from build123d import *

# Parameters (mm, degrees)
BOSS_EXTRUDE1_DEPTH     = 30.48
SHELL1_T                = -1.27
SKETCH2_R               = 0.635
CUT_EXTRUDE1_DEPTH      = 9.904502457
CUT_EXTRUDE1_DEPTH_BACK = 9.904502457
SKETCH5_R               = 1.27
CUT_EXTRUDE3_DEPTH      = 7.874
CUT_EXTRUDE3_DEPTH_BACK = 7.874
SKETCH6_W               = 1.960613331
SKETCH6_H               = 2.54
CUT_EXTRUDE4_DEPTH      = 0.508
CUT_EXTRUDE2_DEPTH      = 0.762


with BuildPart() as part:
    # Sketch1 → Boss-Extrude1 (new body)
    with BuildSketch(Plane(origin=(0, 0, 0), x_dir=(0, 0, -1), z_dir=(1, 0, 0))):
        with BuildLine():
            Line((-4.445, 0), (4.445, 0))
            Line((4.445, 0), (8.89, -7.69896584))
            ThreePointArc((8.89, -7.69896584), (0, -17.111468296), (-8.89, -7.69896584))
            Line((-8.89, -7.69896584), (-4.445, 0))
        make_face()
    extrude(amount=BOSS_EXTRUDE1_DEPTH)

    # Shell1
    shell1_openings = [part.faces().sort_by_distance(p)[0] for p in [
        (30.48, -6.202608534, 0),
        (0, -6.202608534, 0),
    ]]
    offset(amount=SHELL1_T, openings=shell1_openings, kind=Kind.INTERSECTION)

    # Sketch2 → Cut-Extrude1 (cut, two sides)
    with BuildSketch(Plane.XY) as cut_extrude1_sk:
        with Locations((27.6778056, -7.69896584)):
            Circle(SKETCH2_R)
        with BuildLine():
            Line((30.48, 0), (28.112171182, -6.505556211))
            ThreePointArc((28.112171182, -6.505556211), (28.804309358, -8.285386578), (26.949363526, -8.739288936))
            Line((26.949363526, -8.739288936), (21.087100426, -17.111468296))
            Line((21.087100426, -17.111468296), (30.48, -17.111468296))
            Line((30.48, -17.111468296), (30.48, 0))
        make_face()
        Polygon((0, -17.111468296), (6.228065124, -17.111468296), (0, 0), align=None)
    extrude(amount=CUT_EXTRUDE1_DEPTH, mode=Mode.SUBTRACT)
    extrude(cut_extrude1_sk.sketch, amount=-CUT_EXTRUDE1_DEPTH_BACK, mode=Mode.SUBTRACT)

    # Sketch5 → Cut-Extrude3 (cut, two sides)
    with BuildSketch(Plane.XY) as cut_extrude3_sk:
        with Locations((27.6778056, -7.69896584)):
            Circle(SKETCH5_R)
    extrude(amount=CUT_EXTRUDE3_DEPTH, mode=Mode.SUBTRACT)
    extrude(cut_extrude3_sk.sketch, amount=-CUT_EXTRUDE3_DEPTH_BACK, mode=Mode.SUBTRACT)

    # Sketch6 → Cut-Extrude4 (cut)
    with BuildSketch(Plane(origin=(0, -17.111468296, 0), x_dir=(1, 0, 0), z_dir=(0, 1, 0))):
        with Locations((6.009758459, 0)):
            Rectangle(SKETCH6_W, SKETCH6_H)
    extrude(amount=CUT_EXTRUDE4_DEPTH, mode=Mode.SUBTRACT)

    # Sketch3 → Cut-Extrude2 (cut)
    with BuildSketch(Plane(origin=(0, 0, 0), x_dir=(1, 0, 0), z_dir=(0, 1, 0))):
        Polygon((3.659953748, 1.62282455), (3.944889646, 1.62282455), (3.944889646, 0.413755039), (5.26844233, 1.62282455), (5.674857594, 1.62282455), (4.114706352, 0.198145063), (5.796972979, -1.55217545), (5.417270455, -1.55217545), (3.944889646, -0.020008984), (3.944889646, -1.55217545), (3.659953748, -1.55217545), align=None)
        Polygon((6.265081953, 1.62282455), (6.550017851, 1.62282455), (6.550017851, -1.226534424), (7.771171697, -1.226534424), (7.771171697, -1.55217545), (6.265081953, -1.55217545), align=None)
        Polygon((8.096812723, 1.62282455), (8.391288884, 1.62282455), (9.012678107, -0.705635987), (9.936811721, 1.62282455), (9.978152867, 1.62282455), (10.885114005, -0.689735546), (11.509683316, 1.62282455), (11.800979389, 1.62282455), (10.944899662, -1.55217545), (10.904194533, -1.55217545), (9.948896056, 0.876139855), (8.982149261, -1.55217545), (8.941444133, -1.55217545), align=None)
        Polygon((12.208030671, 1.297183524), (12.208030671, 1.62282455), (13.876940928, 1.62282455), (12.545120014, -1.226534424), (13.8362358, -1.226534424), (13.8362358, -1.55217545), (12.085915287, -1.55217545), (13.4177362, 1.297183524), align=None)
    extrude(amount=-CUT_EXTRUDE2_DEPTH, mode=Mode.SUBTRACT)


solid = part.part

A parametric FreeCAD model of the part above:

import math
import FreeCAD as App
import Part
import Sketcher

V = App.Vector
Q = App.Units.Quantity


def faces_at(feature, points):
    """Names of the faces that lie closest to the given points."""
    faces = feature.Shape.Faces
    near = lambda p: min(range(len(faces)), key=lambda i: faces[i].distToShape(Part.Vertex(*p))[0])
    return sorted({f"Face{near(p) + 1}" for p in points})

doc = App.newDocument("Part")
body = doc.addObject("PartDesign::Body", "Body")

sketch1 = body.newObject("Sketcher::SketchObject", "Sketch")
sketch1.AttachmentSupport = (doc.getObject("YZ_Plane"), [""])
sketch1.MapMode = "FlatFace"
sketch1.addGeometry(Part.LineSegment(V(0, -4, 0), V(0, 4, 0)), False)
sketch1.addGeometry(Part.LineSegment(V(0, 4, 0), V(-8, 9, 0)), False)
sketch1.addGeometry(Part.ArcOfCircle(Part.Circle(V(-8, 0, 0), V(0, 0, 1), 9), math.radians(87), math.radians(273)), False)
sketch1.addGeometry(Part.LineSegment(V(-8, -9, 0), V(0, -4, 0)), False)
sketch1.addConstraint(Sketcher.Constraint("Coincident", 0, 2, 1, 1))
sketch1.addConstraint(Sketcher.Constraint("Coincident", 1, 2, 2, 1))
sketch1.addConstraint(Sketcher.Constraint("Coincident", 2, 2, 3, 1))
sketch1.addConstraint(Sketcher.Constraint("Coincident", 3, 2, 0, 1))
sketch1.addConstraint(Sketcher.Constraint("Vertical", 0))
sketch1.addConstraint(Sketcher.Constraint("Symmetric", 0, 2, 3, 2, -1, 1))
sketch1.addConstraint(Sketcher.Constraint("Symmetric", 1, 2, 2, 2, -1))
sketch1.addConstraint(Sketcher.Constraint("Angle", 1, Q("150 deg")))
sketch1.addConstraint(Sketcher.Constraint("DistanceY", 0, 1, 0, 2, Q("0.35 in")))
sketch1.addConstraint(Sketcher.Constraint("DistanceY", 2, 2, 1, 2, Q("0.7 in")))
sketch1.addConstraint(Sketcher.Constraint("DistanceX", 2, 3, 1, 2, Q("0.02 in")))
pad1 = body.newObject("PartDesign::Pad", "Pad")
pad1.Profile = sketch1
pad1.Length = Q("1.2 in")
doc.recompute()

thickness = body.newObject("PartDesign::Thickness", "Thickness")
thickness.Base = (pad1, faces_at(pad1, [(30.48, -8.556, 0), (0, -8.556, 0)]))
thickness.Value = Q("0.05 in")
thickness.Reversed = True
thickness.Join = "Intersection"

sketch2 = body.newObject("Sketcher::SketchObject", "Sketch001")
sketch2.AttachmentSupport = (doc.getObject("XY_Plane"), [""])
sketch2.MapMode = "FlatFace"
sketch2.addGeometry(Part.Circle(V(27.7, -7.7, 0), V(0, 0, 1), 0.6), False)
sketch2.addGeometry(Part.LineSegment(V(30.5, 0, 0), V(28.1, -6.5, 0)), False)
sketch2.addGeometry(Part.ArcOfCircle(Part.Circle(V(27.7, -7.7, 0), V(0, 0, 1), 1.3), math.radians(-125), math.radians(70)), False)
sketch2.addGeometry(Part.LineSegment(V(26.9, -8.7, 0), V(21.1, -17.1, 0)), False)
sketch2.addGeometry(Part.LineSegment(V(21.1, -17.1, 0), V(30.5, -17.1, 0)), False)
sketch2.addGeometry(Part.LineSegment(V(30.5, -17.1, 0), V(30.5, 0, 0)), False)
sketch2.addGeometry(Part.LineSegment(V(0, -17.1, 0), V(6.2, -17.1, 0)), False)
sketch2.addGeometry(Part.LineSegment(V(6.2, -17.1, 0), V(0, 0, 0)), False)
sketch2.addGeometry(Part.LineSegment(V(0, 0, 0), V(0, -17.1, 0)), False)
sketch2.addConstraint(Sketcher.Constraint("Coincident", 1, 2, 2, 2))
sketch2.addConstraint(Sketcher.Constraint("Coincident", 2, 1, 3, 1))
sketch2.addConstraint(Sketcher.Constraint("Coincident", 3, 2, 4, 1))
sketch2.addConstraint(Sketcher.Constraint("Coincident", 4, 2, 5, 1))
sketch2.addConstraint(Sketcher.Constraint("Coincident", 5, 2, 1, 1))
sketch2.addConstraint(Sketcher.Constraint("Coincident", 6, 2, 7, 1))
sketch2.addConstraint(Sketcher.Constraint("Coincident", 7, 2, 8, 1))
sketch2.addConstraint(Sketcher.Constraint("Coincident", 8, 2, 6, 1))
sketch2.addConstraint(Sketcher.Constraint("Horizontal", 4))
sketch2.addConstraint(Sketcher.Constraint("Vertical", 5))
sketch2.addConstraint(Sketcher.Constraint("Horizontal", 6))
sketch2.addConstraint(Sketcher.Constraint("Vertical", 8))
sketch2.addConstraint(Sketcher.Constraint("Coincident", 7, 2, -1, 1))
sketch2.addConstraint(Sketcher.Constraint("Coincident", 2, 3, 0, 3))
sketch2.addConstraint(Sketcher.Constraint("PointOnObject", 5, 2, -1))
sketch2.addConstraint(Sketcher.Constraint("Horizontal", 4, 2, 6, 2))
sketch2.addConstraint(Sketcher.Constraint("Diameter", 0, Q("0.05 in")))
sketch2.addConstraint(Sketcher.Constraint("Radius", 2, Q("0.05 in")))
sketch2.addConstraint(Sketcher.Constraint("Angle", 1, Q("-110 deg")))
sketch2.addConstraint(Sketcher.Constraint("Angle", 3, Q("-125 deg")))
sketch2.addConstraint(Sketcher.Constraint("Angle", 7, Q("110 deg")))
sketch2.addConstraint(Sketcher.Constraint("DistanceX", -1, 1, 4, 2, Q("1.2 in")))
sketch2.addConstraint(Sketcher.Constraint("DistanceX", 4, 1, 4, 2, Q("9.3929 mm")))
sketch2.addConstraint(Sketcher.Constraint("DistanceY", 5, 1, 5, 2, Q("17.111468 mm")))
sketch2.addConstraint(Sketcher.Constraint("DistanceX", 6, 2, 2, 1, Q("20.721298 mm")))
sketch2.addConstraint(Sketcher.Constraint("Distance", 1, Q("6.923068 mm")))
pocket1 = body.newObject("PartDesign::Pocket", "Pocket")
pocket1.Profile = sketch2
pocket1.Type = "ThroughAll"
pocket1.Midplane = True

sketch3 = body.newObject("Sketcher::SketchObject", "Sketch002")
sketch3.AttachmentSupport = (doc.getObject("XY_Plane"), [""])
sketch3.MapMode = "FlatFace"
sketch3.addGeometry(Part.Circle(V(27.7, -7.7, 0), V(0, 0, 1), 1.3), False)
sketch3.addConstraint(Sketcher.Constraint("Diameter", 0, Q("0.1 in")))
sketch3.addConstraint(Sketcher.Constraint("DistanceX", -1, 1, 0, 3, Q("27.677806 mm")))
sketch3.addConstraint(Sketcher.Constraint("DistanceY", 0, 3, -1, 1, Q("7.698966 mm")))
pocket2 = body.newObject("PartDesign::Pocket", "Pocket001")
pocket2.Profile = sketch3
pocket2.Type = "TwoLengths"
pocket2.Length = Q("0.31 in")
pocket2.Length2 = Q("0.31 in")
pocket2.Reversed = True

sketch4 = body.newObject("Sketcher::SketchObject", "Sketch003")
sketch4.AttachmentSupport = (doc.getObject("XZ_Plane"), [""])
sketch4.MapMode = "FlatFace"
sketch4.AttachmentOffset = App.Placement(V(0, 0, 17.111468), App.Rotation())
sketch4.addGeometry(Part.LineSegment(V(5, -1.3, 0), V(5, 1.3, 0)), False)
sketch4.addGeometry(Part.LineSegment(V(5, 1.3, 0), V(7, 1.3, 0)), False)
sketch4.addGeometry(Part.LineSegment(V(7, 1.3, 0), V(7, -1.3, 0)), False)
sketch4.addGeometry(Part.LineSegment(V(7, -1.3, 0), V(5, -1.3, 0)), False)
sketch4.addConstraint(Sketcher.Constraint("Coincident", 0, 2, 1, 1))
sketch4.addConstraint(Sketcher.Constraint("Coincident", 1, 2, 2, 1))
sketch4.addConstraint(Sketcher.Constraint("Coincident", 2, 2, 3, 1))
sketch4.addConstraint(Sketcher.Constraint("Coincident", 3, 2, 0, 1))
sketch4.addConstraint(Sketcher.Constraint("Vertical", 0))
sketch4.addConstraint(Sketcher.Constraint("Horizontal", 1))
sketch4.addConstraint(Sketcher.Constraint("Vertical", 2))
sketch4.addConstraint(Sketcher.Constraint("Horizontal", 3))
sketch4.addConstraint(Sketcher.Constraint("DistanceY", 0, 1, 0, 2, Q("0.1 in")))
sketch4.addConstraint(Sketcher.Constraint("DistanceY", -1, 1, 0, 2, Q("0.05 in")))
sketch4.addConstraint(Sketcher.Constraint("DistanceX", 1, 1, 1, 2, Q("1.960613 mm")))
sketch4.addConstraint(Sketcher.Constraint("DistanceX", -1, 1, 0, 2, Q("5.029452 mm")))
pocket3 = body.newObject("PartDesign::Pocket", "Pocket002")
pocket3.Profile = sketch4
pocket3.Length = Q("0.02 in")

sketch5 = body.newObject("Sketcher::SketchObject", "Sketch004")
sketch5.AttachmentSupport = (doc.getObject("XZ_Plane"), [""])
sketch5.MapMode = "FlatFace"
sketch5.addGeometry(Part.LineSegment(V(3.945, -1.623, 0), V(3.66, -1.623, 0)), False)
sketch5.addGeometry(Part.LineSegment(V(3.66, -1.623, 0), V(3.66, 1.552, 0)), False)
sketch5.addGeometry(Part.LineSegment(V(3.66, 1.552, 0), V(3.945, 1.552, 0)), False)
sketch5.addGeometry(Part.LineSegment(V(3.945, 1.552, 0), V(3.945, 0.02, 0)), False)
sketch5.addGeometry(Part.LineSegment(V(3.945, 0.02, 0), V(5.417, 1.552, 0)), False)
sketch5.addGeometry(Part.LineSegment(V(5.417, 1.552, 0), V(5.797, 1.552, 0)), False)
sketch5.addGeometry(Part.LineSegment(V(5.797, 1.552, 0), V(4.115, -0.198, 0)), False)
sketch5.addGeometry(Part.LineSegment(V(4.115, -0.198, 0), V(5.675, -1.623, 0)), False)
sketch5.addGeometry(Part.LineSegment(V(5.675, -1.623, 0), V(5.268, -1.623, 0)), False)
sketch5.addGeometry(Part.LineSegment(V(5.268, -1.623, 0), V(3.945, -0.414, 0)), False)
sketch5.addGeometry(Part.LineSegment(V(3.945, -0.414, 0), V(3.945, -1.623, 0)), False)
sketch5.addGeometry(Part.LineSegment(V(6.55, -1.623, 0), V(6.265, -1.623, 0)), False)
sketch5.addGeometry(Part.LineSegment(V(6.265, -1.623, 0), V(6.265, 1.552, 0)), False)
sketch5.addGeometry(Part.LineSegment(V(6.265, 1.552, 0), V(7.771, 1.552, 0)), False)
sketch5.addGeometry(Part.LineSegment(V(7.771, 1.552, 0), V(7.771, 1.227, 0)), False)
sketch5.addGeometry(Part.LineSegment(V(7.771, 1.227, 0), V(6.55, 1.227, 0)), False)
sketch5.addGeometry(Part.LineSegment(V(6.55, 1.227, 0), V(6.55, -1.623, 0)), False)
sketch5.addGeometry(Part.LineSegment(V(8.391, -1.623, 0), V(8.097, -1.623, 0)), False)
sketch5.addGeometry(Part.LineSegment(V(8.097, -1.623, 0), V(8.941, 1.552, 0)), False)
sketch5.addGeometry(Part.LineSegment(V(8.941, 1.552, 0), V(8.982, 1.552, 0)), False)
sketch5.addGeometry(Part.LineSegment(V(8.982, 1.552, 0), V(9.949, -0.876, 0)), False)
sketch5.addGeometry(Part.LineSegment(V(9.949, -0.876, 0), V(10.904, 1.552, 0)), False)
sketch5.addGeometry(Part.LineSegment(V(10.904, 1.552, 0), V(10.945, 1.552, 0)), False)
sketch5.addGeometry(Part.LineSegment(V(10.945, 1.552, 0), V(11.801, -1.623, 0)), False)
sketch5.addGeometry(Part.LineSegment(V(11.801, -1.623, 0), V(11.51, -1.623, 0)), False)
sketch5.addGeometry(Part.LineSegment(V(11.51, -1.623, 0), V(10.885, 0.69, 0)), False)
sketch5.addGeometry(Part.LineSegment(V(10.885, 0.69, 0), V(9.978, -1.623, 0)), False)
sketch5.addGeometry(Part.LineSegment(V(9.978, -1.623, 0), V(9.937, -1.623, 0)), False)
sketch5.addGeometry(Part.LineSegment(V(9.937, -1.623, 0), V(9.013, 0.706, 0)), False)
sketch5.addGeometry(Part.LineSegment(V(9.013, 0.706, 0), V(8.391, -1.623, 0)), False)
sketch5.addGeometry(Part.LineSegment(V(12.208, -1.623, 0), V(12.208, -1.297, 0)), False)
sketch5.addGeometry(Part.LineSegment(V(12.208, -1.297, 0), V(13.418, -1.297, 0)), False)
sketch5.addGeometry(Part.LineSegment(V(13.418, -1.297, 0), V(12.086, 1.552, 0)), False)
sketch5.addGeometry(Part.LineSegment(V(12.086, 1.552, 0), V(13.836, 1.552, 0)), False)
sketch5.addGeometry(Part.LineSegment(V(13.836, 1.552, 0), V(13.836, 1.227, 0)), False)
sketch5.addGeometry(Part.LineSegment(V(13.836, 1.227, 0), V(12.545, 1.227, 0)), False)
sketch5.addGeometry(Part.LineSegment(V(12.545, 1.227, 0), V(13.877, -1.623, 0)), False)
sketch5.addGeometry(Part.LineSegment(V(13.877, -1.623, 0), V(12.208, -1.623, 0)), False)
sketch5.addConstraint(Sketcher.Constraint("Coincident", 0, 2, 1, 1))
sketch5.addConstraint(Sketcher.Constraint("Coincident", 1, 2, 2, 1))
sketch5.addConstraint(Sketcher.Constraint("Coincident", 2, 2, 3, 1))
sketch5.addConstraint(Sketcher.Constraint("Coincident", 3, 2, 4, 1))
sketch5.addConstraint(Sketcher.Constraint("Coincident", 4, 2, 5, 1))
sketch5.addConstraint(Sketcher.Constraint("Coincident", 5, 2, 6, 1))
sketch5.addConstraint(Sketcher.Constraint("Coincident", 6, 2, 7, 1))
sketch5.addConstraint(Sketcher.Constraint("Coincident", 7, 2, 8, 1))
sketch5.addConstraint(Sketcher.Constraint("Coincident", 8, 2, 9, 1))
sketch5.addConstraint(Sketcher.Constraint("Coincident", 9, 2, 10, 1))
sketch5.addConstraint(Sketcher.Constraint("Coincident", 10, 2, 0, 1))
sketch5.addConstraint(Sketcher.Constraint("Coincident", 11, 2, 12, 1))
sketch5.addConstraint(Sketcher.Constraint("Coincident", 12, 2, 13, 1))
sketch5.addConstraint(Sketcher.Constraint("Coincident", 13, 2, 14, 1))
sketch5.addConstraint(Sketcher.Constraint("Coincident", 14, 2, 15, 1))
sketch5.addConstraint(Sketcher.Constraint("Coincident", 15, 2, 16, 1))
sketch5.addConstraint(Sketcher.Constraint("Coincident", 16, 2, 11, 1))
sketch5.addConstraint(Sketcher.Constraint("Coincident", 17, 2, 18, 1))
sketch5.addConstraint(Sketcher.Constraint("Coincident", 18, 2, 19, 1))
sketch5.addConstraint(Sketcher.Constraint("Coincident", 19, 2, 20, 1))
sketch5.addConstraint(Sketcher.Constraint("Coincident", 20, 2, 21, 1))
sketch5.addConstraint(Sketcher.Constraint("Coincident", 21, 2, 22, 1))
sketch5.addConstraint(Sketcher.Constraint("Coincident", 22, 2, 23, 1))
sketch5.addConstraint(Sketcher.Constraint("Coincident", 23, 2, 24, 1))
sketch5.addConstraint(Sketcher.Constraint("Coincident", 24, 2, 25, 1))
sketch5.addConstraint(Sketcher.Constraint("Coincident", 25, 2, 26, 1))
sketch5.addConstraint(Sketcher.Constraint("Coincident", 26, 2, 27, 1))
sketch5.addConstraint(Sketcher.Constraint("Coincident", 27, 2, 28, 1))
sketch5.addConstraint(Sketcher.Constraint("Coincident", 28, 2, 29, 1))
sketch5.addConstraint(Sketcher.Constraint("Coincident", 29, 2, 17, 1))
sketch5.addConstraint(Sketcher.Constraint("Coincident", 30, 2, 31, 1))
sketch5.addConstraint(Sketcher.Constraint("Coincident", 31, 2, 32, 1))
sketch5.addConstraint(Sketcher.Constraint("Coincident", 32, 2, 33, 1))
sketch5.addConstraint(Sketcher.Constraint("Coincident", 33, 2, 34, 1))
sketch5.addConstraint(Sketcher.Constraint("Coincident", 34, 2, 35, 1))
sketch5.addConstraint(Sketcher.Constraint("Coincident", 35, 2, 36, 1))
sketch5.addConstraint(Sketcher.Constraint("Coincident", 36, 2, 37, 1))
sketch5.addConstraint(Sketcher.Constraint("Coincident", 37, 2, 30, 1))
sketch5.addConstraint(Sketcher.Constraint("Horizontal", 0))
sketch5.addConstraint(Sketcher.Constraint("Vertical", 1))
sketch5.addConstraint(Sketcher.Constraint("Horizontal", 2))
sketch5.addConstraint(Sketcher.Constraint("Vertical", 3))
sketch5.addConstraint(Sketcher.Constraint("Horizontal", 5))
sketch5.addConstraint(Sketcher.Constraint("Horizontal", 8))
sketch5.addConstraint(Sketcher.Constraint("Vertical", 10))
sketch5.addConstraint(Sketcher.Constraint("Horizontal", 11))
sketch5.addConstraint(Sketcher.Constraint("Vertical", 12))
sketch5.addConstraint(Sketcher.Constraint("Horizontal", 13))
sketch5.addConstraint(Sketcher.Constraint("Vertical", 14))
sketch5.addConstraint(Sketcher.Constraint("Horizontal", 15))
sketch5.addConstraint(Sketcher.Constraint("Vertical", 16))
sketch5.addConstraint(Sketcher.Constraint("Horizontal", 17))
sketch5.addConstraint(Sketcher.Constraint("Horizontal", 19))
sketch5.addConstraint(Sketcher.Constraint("Horizontal", 22))
sketch5.addConstraint(Sketcher.Constraint("Horizontal", 24))
sketch5.addConstraint(Sketcher.Constraint("Horizontal", 27))
sketch5.addConstraint(Sketcher.Constraint("Vertical", 30))
sketch5.addConstraint(Sketcher.Constraint("Horizontal", 31))
sketch5.addConstraint(Sketcher.Constraint("Horizontal", 33))
sketch5.addConstraint(Sketcher.Constraint("Vertical", 34))
sketch5.addConstraint(Sketcher.Constraint("Horizontal", 35))
sketch5.addConstraint(Sketcher.Constraint("Horizontal", 37))
sketch5.addConstraint(Sketcher.Constraint("Parallel", 32, 36))
sketch5.addConstraint(Sketcher.Constraint("Horizontal", 2, 2, 4, 2))
sketch5.addConstraint(Sketcher.Constraint("Horizontal", 0, 2, 7, 2))
sketch5.addConstraint(Sketcher.Constraint("Horizontal", 10, 2, 11, 2))
sketch5.addConstraint(Sketcher.Constraint("Horizontal", 5, 2, 12, 2))
sketch5.addConstraint(Sketcher.Constraint("Horizontal", 16, 2, 17, 2))
sketch5.addConstraint(Sketcher.Constraint("Horizontal", 13, 2, 18, 2))
sketch5.addConstraint(Sketcher.Constraint("Horizontal", 19, 2, 21, 2))
sketch5.addConstraint(Sketcher.Constraint("Horizontal", 17, 2, 23, 2))
sketch5.addConstraint(Sketcher.Constraint("Horizontal", 24, 2, 26, 2))
sketch5.addConstraint(Sketcher.Constraint("Horizontal", 22, 2, 32, 2))
sketch5.addConstraint(Sketcher.Constraint("Horizontal", 15, 2, 34, 2))
sketch5.addConstraint(Sketcher.Constraint("Horizontal", 29, 2, 36, 2))
sketch5.addConstraint(Sketcher.Constraint("Vertical", 3, 2, 9, 2))
sketch5.addConstraint(Sketcher.Constraint("Equal", 2, 11))
sketch5.addConstraint(Sketcher.Constraint("Equal", 19, 22))
sketch5.addConstraint(Sketcher.Constraint("Equal", 14, 30))
sketch5.addConstraint(Sketcher.Constraint("DistanceY", 1, 1, 1, 2, Q("0.125 in")))
sketch5.addConstraint(Sketcher.Constraint("DistanceX", 13, 1, 13, 2, Q("1.50609 mm")))
sketch5.addConstraint(Sketcher.Constraint("DistanceX", 27, 2, 27, 1, Q("0.041341 mm")))
sketch5.addConstraint(Sketcher.Constraint("DistanceX", 33, 1, 33, 2, Q("1.750321 mm")))
sketch5.addConstraint(Sketcher.Constraint("DistanceX", 37, 2, 37, 1, Q("1.66891 mm")))
sketch5.addConstraint(Sketcher.Constraint("DistanceY", 10, 2, 10, 1, Q("1.20907 mm")))
sketch5.addConstraint(Sketcher.Constraint("DistanceY", 14, 2, 14, 1, Q("0.325641 mm")))
sketch5.addConstraint(Sketcher.Constraint("DistanceX", -1, 1, 22, 2, Q("10.9449 mm")))
sketch5.addConstraint(Sketcher.Constraint("DistanceX", 5, 2, 13, 2, Q("1.974199 mm")))
sketch5.addConstraint(Sketcher.Constraint("DistanceX", 4, 2, 13, 2, Q("2.353901 mm")))
sketch5.addConstraint(Sketcher.Constraint("DistanceX", 20, 2, 21, 2, Q("0.955298 mm")))
sketch5.addConstraint(Sketcher.Constraint("DistanceX", 17, 2, 27, 2, Q("1.839999 mm")))
sketch5.addConstraint(Sketcher.Constraint("DistanceY", 28, 2, 14, 2, Q("0.520898 mm")))
sketch5.addConstraint(Sketcher.Constraint("DistanceX", 25, 2, 32, 2, Q("1.200801 mm")))
sketch5.addConstraint(Sketcher.Constraint("DistanceX", 31, 2, 33, 2, Q("0.4185 mm")))
sketch5.addConstraint(Sketcher.Constraint("Distance", 20, Q("2.613678 mm")))
sketch5.addConstraint(Sketcher.Constraint("Distance", 23, Q("3.288388 mm")))
sketch5.addConstraint(Sketcher.Constraint("Distance", 26, Q("2.484052 mm")))
sketch5.addConstraint(Sketcher.Constraint("Distance", 29, Q("2.409949 mm")))
sketch5.addConstraint(Sketcher.Constraint("DistanceX", 0, 2, 0, 1, Q("0.284936 mm")))
sketch5.addConstraint(Sketcher.Constraint("DistanceX", 8, 2, 8, 1, Q("0.406415 mm")))
sketch5.addConstraint(Sketcher.Constraint("DistanceX", 17, 2, 17, 1, Q("0.294476 mm")))
sketch5.addConstraint(Sketcher.Constraint("DistanceX", 19, 1, 19, 2, Q("0.040705 mm")))
sketch5.addConstraint(Sketcher.Constraint("DistanceX", 24, 2, 24, 1, Q("0.291296 mm")))
sketch5.addConstraint(Sketcher.Constraint("DistanceX", 31, 1, 31, 2, Q("1.209706 mm")))
sketch5.addConstraint(Sketcher.Constraint("DistanceY", 3, 2, 3, 1, Q("1.532166 mm")))
sketch5.addConstraint(Sketcher.Constraint("DistanceX", -1, 1, 2, 2, Q("3.94489 mm")))
sketch5.addConstraint(Sketcher.Constraint("DistanceY", -1, 1, 3, 2, Q("0.020009 mm")))
sketch5.addConstraint(Sketcher.Constraint("DistanceX", -1, 1, 4, 2, Q("5.41727 mm")))
sketch5.addConstraint(Sketcher.Constraint("DistanceX", -1, 1, 19, 2, Q("8.982149 mm")))
sketch5.addConstraint(Sketcher.Constraint("DistanceX", -1, 1, 27, 2, Q("9.936812 mm")))
sketch5.addConstraint(Sketcher.Constraint("DistanceX", -1, 1, 30, 2, Q("12.208031 mm")))
sketch5.addConstraint(Sketcher.Constraint("DistanceY", 0, 2, 6, 2, Q("1.424679 mm")))
sketch5.addConstraint(Sketcher.Constraint("DistanceX", 6, 2, 7, 2, Q("1.560151 mm")))
sketch5.addConstraint(Sketcher.Constraint("DistanceX", 0, 2, 8, 2, Q("1.608489 mm")))
pocket4 = body.newObject("PartDesign::Pocket", "Pocket003")
pocket4.Profile = sketch5
pocket4.Length = Q("0.03 in")
pocket4.Reversed = True

doc.recompute()
